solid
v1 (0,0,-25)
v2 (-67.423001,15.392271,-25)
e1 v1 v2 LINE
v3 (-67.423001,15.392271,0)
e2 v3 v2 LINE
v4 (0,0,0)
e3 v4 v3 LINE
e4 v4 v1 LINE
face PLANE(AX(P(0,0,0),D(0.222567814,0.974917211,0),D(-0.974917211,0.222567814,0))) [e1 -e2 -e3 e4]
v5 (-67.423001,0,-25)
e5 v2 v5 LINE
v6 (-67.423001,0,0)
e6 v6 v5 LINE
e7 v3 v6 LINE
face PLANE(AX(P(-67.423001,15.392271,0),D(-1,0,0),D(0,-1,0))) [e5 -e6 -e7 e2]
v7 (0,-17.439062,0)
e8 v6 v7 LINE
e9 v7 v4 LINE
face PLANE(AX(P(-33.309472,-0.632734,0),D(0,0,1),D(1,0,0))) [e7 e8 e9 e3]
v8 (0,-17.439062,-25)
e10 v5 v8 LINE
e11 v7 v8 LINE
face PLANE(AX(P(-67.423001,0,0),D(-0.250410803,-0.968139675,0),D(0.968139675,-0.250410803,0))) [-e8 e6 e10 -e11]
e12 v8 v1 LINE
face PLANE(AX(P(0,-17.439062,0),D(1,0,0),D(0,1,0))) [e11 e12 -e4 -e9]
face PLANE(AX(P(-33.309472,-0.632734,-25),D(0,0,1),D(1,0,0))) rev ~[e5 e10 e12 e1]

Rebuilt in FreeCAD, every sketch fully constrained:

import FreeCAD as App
import Part
import Sketcher

V = App.Vector

doc = App.newDocument("Part")
body = doc.addObject("PartDesign::Body", "Body")

sketch1 = doc.addObject("Sketcher::SketchObject", "Sketch")
body.addObject(sketch1)
sketch1.AttachmentSupport = (doc.XY_Plane, [""])
sketch1.MapMode = "FlatFace"
sketch1.addGeometry(Part.LineSegment(V(0, -17, 0), V(0, 0, 0)), False)
sketch1.addGeometry(Part.LineSegment(V(0, 0, 0), V(-67, 15, 0)), False)
sketch1.addGeometry(Part.LineSegment(V(-67, 15, 0), V(-67, 0, 0)), False)
sketch1.addGeometry(Part.LineSegment(V(-67, 0, 0), V(0, -17, 0)), False)
sketch1.addConstraint(Sketcher.Constraint("Coincident", 0, 2, 1, 1))
sketch1.addConstraint(Sketcher.Constraint("Coincident", 1, 2, 2, 1))
sketch1.addConstraint(Sketcher.Constraint("Coincident", 2, 2, 3, 1))
sketch1.addConstraint(Sketcher.Constraint("Coincident", 3, 2, 0, 1))
sketch1.addConstraint(Sketcher.Constraint("Vertical", 0))
sketch1.addConstraint(Sketcher.Constraint("Vertical", 2))
sketch1.addConstraint(Sketcher.Constraint("Coincident", 0, 2, -1, 1))
sketch1.addConstraint(Sketcher.Constraint("PointOnObject", 2, 2, -1))
sketch1.addConstraint(Sketcher.Constraint("DistanceX", 1, 2, -1, 1, 67.423001))
sketch1.addConstraint(Sketcher.Constraint("DistanceY", 0, 1, 0, 2, 17.439062))
sketch1.addConstraint(Sketcher.Constraint("DistanceY", 2, 2, 2, 1, 15.392271))
pad1 = doc.addObject("PartDesign::Pad", "Pad")
body.addObject(pad1)
pad1.Profile = sketch1
pad1.Length = 25
pad1.Reversed = True

doc.recompute()
